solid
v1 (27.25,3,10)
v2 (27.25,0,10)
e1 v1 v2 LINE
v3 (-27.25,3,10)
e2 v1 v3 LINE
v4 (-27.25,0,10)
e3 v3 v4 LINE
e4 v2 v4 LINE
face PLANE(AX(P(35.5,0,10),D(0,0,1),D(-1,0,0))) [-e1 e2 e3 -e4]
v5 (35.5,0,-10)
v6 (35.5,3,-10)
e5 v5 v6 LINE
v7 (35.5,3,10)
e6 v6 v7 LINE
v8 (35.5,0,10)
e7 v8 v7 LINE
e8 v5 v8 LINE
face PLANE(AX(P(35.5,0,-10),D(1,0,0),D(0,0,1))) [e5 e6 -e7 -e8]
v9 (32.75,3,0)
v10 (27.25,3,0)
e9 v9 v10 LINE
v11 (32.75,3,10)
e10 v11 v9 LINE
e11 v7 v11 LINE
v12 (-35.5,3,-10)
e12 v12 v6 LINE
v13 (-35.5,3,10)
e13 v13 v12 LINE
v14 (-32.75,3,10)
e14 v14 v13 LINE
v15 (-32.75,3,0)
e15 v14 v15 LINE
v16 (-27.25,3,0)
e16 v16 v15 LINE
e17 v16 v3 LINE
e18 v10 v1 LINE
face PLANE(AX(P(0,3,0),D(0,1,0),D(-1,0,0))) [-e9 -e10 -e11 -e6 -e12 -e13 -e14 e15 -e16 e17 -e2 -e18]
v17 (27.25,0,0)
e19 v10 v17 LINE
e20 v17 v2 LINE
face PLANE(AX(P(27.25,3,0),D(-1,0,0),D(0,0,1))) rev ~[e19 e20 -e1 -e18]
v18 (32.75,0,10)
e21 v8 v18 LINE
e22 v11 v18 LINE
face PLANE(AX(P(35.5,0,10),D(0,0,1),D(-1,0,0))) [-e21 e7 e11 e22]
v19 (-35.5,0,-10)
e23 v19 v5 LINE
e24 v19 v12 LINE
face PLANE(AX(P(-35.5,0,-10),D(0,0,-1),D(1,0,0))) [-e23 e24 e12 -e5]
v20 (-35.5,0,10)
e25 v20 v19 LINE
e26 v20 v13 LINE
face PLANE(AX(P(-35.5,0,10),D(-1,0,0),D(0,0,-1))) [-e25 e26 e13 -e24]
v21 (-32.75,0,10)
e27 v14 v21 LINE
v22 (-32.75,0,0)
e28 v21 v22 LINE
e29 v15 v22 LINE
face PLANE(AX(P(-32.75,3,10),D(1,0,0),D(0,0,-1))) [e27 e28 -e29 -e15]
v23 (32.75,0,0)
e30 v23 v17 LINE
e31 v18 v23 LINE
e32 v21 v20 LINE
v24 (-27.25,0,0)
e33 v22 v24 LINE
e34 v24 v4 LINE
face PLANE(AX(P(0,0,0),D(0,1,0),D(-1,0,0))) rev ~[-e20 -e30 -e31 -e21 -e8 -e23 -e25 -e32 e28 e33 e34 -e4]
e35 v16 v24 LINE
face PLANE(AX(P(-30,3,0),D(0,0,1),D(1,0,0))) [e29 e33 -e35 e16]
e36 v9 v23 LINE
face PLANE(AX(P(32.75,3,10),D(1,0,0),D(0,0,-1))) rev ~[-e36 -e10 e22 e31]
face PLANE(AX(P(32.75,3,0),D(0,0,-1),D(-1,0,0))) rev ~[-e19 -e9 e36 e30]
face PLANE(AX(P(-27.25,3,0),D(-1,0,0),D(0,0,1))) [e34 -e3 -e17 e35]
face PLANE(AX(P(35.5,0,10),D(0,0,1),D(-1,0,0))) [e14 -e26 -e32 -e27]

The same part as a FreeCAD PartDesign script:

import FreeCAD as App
import Part
import Sketcher
from FreeCAD import Vector

doc = App.newDocument("Part")
body = doc.addObject("PartDesign::Body", "Body")

sketch1 = body.newObject("Sketcher::SketchObject", "Sketch")
sketch1.AttachmentSupport = (doc.getObject("XZ_Plane"), [""])
sketch1.MapMode = "FlatFace"
sketch1.addGeometry(Part.LineSegment(Vector(36, -10, 0), Vector(-36, -10, 0)), False)
sketch1.addGeometry(Part.LineSegment(Vector(-36, -10, 0), Vector(-36, 10, 0)), False)
sketch1.addGeometry(Part.LineSegment(Vector(-36, 10, 0), Vector(36, 10, 0)), False)
sketch1.addGeometry(Part.LineSegment(Vector(36, 10, 0), Vector(36, -10, 0)), False)
sketch1.addConstraint(Sketcher.Constraint("Coincident", 0, 2, 1, 1))
sketch1.addConstraint(Sketcher.Constraint("Coincident", 1, 2, 2, 1))
sketch1.addConstraint(Sketcher.Constraint("Coincident", 2, 2, 3, 1))
sketch1.addConstraint(Sketcher.Constraint("Coincident", 3, 2, 0, 1))
sketch1.addConstraint(Sketcher.Constraint("Horizontal", 0))
sketch1.addConstraint(Sketcher.Constraint("Vertical", 1))
sketch1.addConstraint(Sketcher.Constraint("Horizontal", 2))
sketch1.addConstraint(Sketcher.Constraint("Vertical", 3))
sketch1.addConstraint(Sketcher.Constraint("Symmetric", 0, 2, 2, 2, -1, 1))
sketch1.addConstraint(Sketcher.Constraint("DistanceX", 0, 2, 0, 1, 71.0))
sketch1.addConstraint(Sketcher.Constraint("DistanceY", 1, 1, 1, 2, 20.0))
pad1 = body.newObject("PartDesign::Pad", "Pad")
pad1.Profile = sketch1
pad1.Length = 3
pad1.Reversed = True

sketch2 = body.newObject("Sketcher::SketchObject", "Sketch001")
sketch2.AttachmentSupport = (doc.getObject("XZ_Plane"), [""])
sketch2.MapMode = "FlatFace"
sketch2.AttachmentOffset = App.Placement(Vector(0, 0, -3), App.Rotation())
sketch2.addGeometry(Part.LineSegment(Vector(27, 0, 0), Vector(27, 10, 0)), False)
sketch2.addGeometry(Part.LineSegment(Vector(27, 10, 0), Vector(33, 10, 0)), False)
sketch2.addGeometry(Part.LineSegment(Vector(33, 10, 0), Vector(33, 0, 0)), False)
sketch2.addGeometry(Part.LineSegment(Vector(33, 0, 0), Vector(27, 0, 0)), False)
sketch2.addGeometry(Part.LineSegment(Vector(-27, 10, 0), Vector(-27, 0, 0)), False)
sketch2.addGeometry(Part.LineSegment(Vector(-27, 0, 0), Vector(-33, 0, 0)), False)
sketch2.addGeometry(Part.LineSegment(Vector(-33, 0, 0), Vector(-33, 10, 0)), False)
sketch2.addGeometry(Part.LineSegment(Vector(-33, 10, 0), Vector(-27, 10, 0)), False)
sketch2.addConstraint(Sketcher.Constraint("Coincident", 0, 2, 1, 1))
sketch2.addConstraint(Sketcher.Constraint("Coincident", 1, 2, 2, 1))
sketch2.addConstraint(Sketcher.Constraint("Coincident", 2, 2, 3, 1))
sketch2.addConstraint(Sketcher.Constraint("Coincident", 3, 2, 0, 1))
sketch2.addConstraint(Sketcher.Constraint("Coincident", 4, 2, 5, 1))
sketch2.addConstraint(Sketcher.Constraint("Coincident", 5, 2, 6, 1))
sketch2.addConstraint(Sketcher.Constraint("Coincident", 6, 2, 7, 1))
sketch2.addConstraint(Sketcher.Constraint("Coincident", 7, 2, 4, 1))
sketch2.addConstraint(Sketcher.Constraint("Vertical", 0))
sketch2.addConstraint(Sketcher.Constraint("Horizontal", 1))
sketch2.addConstraint(Sketcher.Constraint("Vertical", 2))
sketch2.addConstraint(Sketcher.Constraint("Horizontal", 3))
sketch2.addConstraint(Sketcher.Constraint("Vertical", 4))
sketch2.addConstraint(Sketcher.Constraint("Horizontal", 5))
sketch2.addConstraint(Sketcher.Constraint("Vertical", 6))
sketch2.addConstraint(Sketcher.Constraint("Horizontal", 7))
sketch2.addConstraint(Sketcher.Constraint("Symmetric", 3, 2, 4, 2, -1, 1))
sketch2.addConstraint(Sketcher.Constraint("Symmetric", 2, 2, 5, 2, -2))
sketch2.addConstraint(Sketcher.Constraint("Horizontal", 1, 2, 6, 2))
sketch2.addConstraint(Sketcher.Constraint("DistanceY", 0, 1, 0, 2, 10.0))
sketch2.addConstraint(Sketcher.Constraint("DistanceX", 1, 1, 1, 2, 5.5))
sketch2.addConstraint(Sketcher.Constraint("DistanceX", 4, 2, 2, 2, 60.0))
pocket1 = body.newObject("PartDesign::Pocket", "Pocket")
pocket1.Profile = sketch2
pocket1.Type = "ThroughAll"
pocket1.Reversed = True

doc.recompute()
